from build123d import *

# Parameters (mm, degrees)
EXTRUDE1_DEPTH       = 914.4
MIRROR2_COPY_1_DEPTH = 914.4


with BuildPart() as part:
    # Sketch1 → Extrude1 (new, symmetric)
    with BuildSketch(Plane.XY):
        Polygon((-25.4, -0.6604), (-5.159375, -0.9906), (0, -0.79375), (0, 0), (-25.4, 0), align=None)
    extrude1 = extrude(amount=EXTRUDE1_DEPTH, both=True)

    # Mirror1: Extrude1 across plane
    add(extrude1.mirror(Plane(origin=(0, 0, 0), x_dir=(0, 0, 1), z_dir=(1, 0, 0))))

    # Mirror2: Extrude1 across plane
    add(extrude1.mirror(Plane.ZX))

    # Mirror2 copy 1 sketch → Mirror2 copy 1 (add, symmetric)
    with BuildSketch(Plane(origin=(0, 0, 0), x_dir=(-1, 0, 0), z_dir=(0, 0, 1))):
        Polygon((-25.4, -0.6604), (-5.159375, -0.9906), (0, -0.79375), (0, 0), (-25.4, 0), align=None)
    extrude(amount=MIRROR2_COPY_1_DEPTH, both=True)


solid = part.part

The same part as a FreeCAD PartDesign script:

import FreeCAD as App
import Part
import Sketcher
Q = App.Units.Quantity

doc = App.newDocument("Part")
body = doc.addObject("PartDesign::Body", "Body")

sketch1 = body.newObject("Sketcher::SketchObject", "Sketch")
sketch1.AttachmentSupport = (doc.getObject("XY_Plane"), [""])
sketch1.MapMode = "FlatFace"
sketch1.addGeometry([
    Part.LineSegment(App.Vector(-25.4, -0.6604, 0), App.Vector(-5.159375, -0.9906, 0)),
    Part.LineSegment(App.Vector(-5.159375, -0.9906, 0), App.Vector(0, -0.79375, 0)),
    Part.LineSegment(App.Vector(0, -0.79375, 0), App.Vector(0, 0, 0)),
    Part.LineSegment(App.Vector(0, 0, 0), App.Vector(-25.4, 0, 0)),
    Part.LineSegment(App.Vector(-25.4, 0, 0), App.Vector(-25.4, -0.6604, 0)),
], False)
sketch1.addConstraint([
    Sketcher.Constraint("Coincident", 0, 2, 1, 1),
    Sketcher.Constraint("Coincident", 1, 2, 2, 1),
    Sketcher.Constraint("Coincident", 2, 2, 3, 1),
    Sketcher.Constraint("Coincident", 3, 2, 4, 1),
    Sketcher.Constraint("Coincident", 4, 2, 0, 1),
    Sketcher.Constraint("Vertical", 2),
    Sketcher.Constraint("Horizontal", 3),
    Sketcher.Constraint("Vertical", 4),
    Sketcher.Constraint("Coincident", 2, 2, -1, 1),
    Sketcher.Constraint("DistanceX", 3, 2, 3, 1, Q("1 in")),
    Sketcher.Constraint("DistanceY", 2, 1, 2, 2, Q("0.03125 in")),
    Sketcher.Constraint("DistanceY", 4, 2, 4, 1, Q("0.026 in")),
    Sketcher.Constraint("DistanceX", 0, 2, -1, 1, Q("0.203125 in")),
    Sketcher.Constraint("DistanceY", 0, 2, -1, 1, Q("0.039 in")),
])
pad1 = body.newObject("PartDesign::Pad", "Pad")
pad1.Profile = sketch1
pad1.Length = Q("72 in")
pad1.Midplane = True
doc.recompute()

mirrored = body.newObject("PartDesign::Mirrored", "Mirrored")
mirrored.Originals = [pad1]
mirrored.MirrorPlane = (doc.getObject("YZ_Plane"), [""])
body.Tip = mirrored
doc.recompute()

mirrored2 = body.newObject("PartDesign::Mirrored", "Mirrored001")
mirrored2.Originals = [pad1]
mirrored2.MirrorPlane = (doc.getObject("XZ_Plane"), [""])
body.Tip = mirrored2

sketch2 = body.newObject("Sketcher::SketchObject", "Sketch001")
sketch2.AttachmentSupport = (doc.getObject("XY_Plane"), [""])
sketch2.MapMode = "FlatFace"
sketch2.addGeometry([
    Part.LineSegment(App.Vector(25.4, 0.6604, 0), App.Vector(5.159375, 0.9906, 0)),
    Part.LineSegment(App.Vector(5.159375, 0.9906, 0), App.Vector(0, 0.79375, 0)),
    Part.LineSegment(App.Vector(0, 0.79375, 0), App.Vector(0, 0, 0)),
    Part.LineSegment(App.Vector(0, 0, 0), App.Vector(25.4, 0, 0)),
    Part.LineSegment(App.Vector(25.4, 0, 0), App.Vector(25.4, 0.6604, 0)),
], False)
sketch2.addConstraint([
    Sketcher.Constraint("Coincident", 0, 2, 1, 1),
    Sketcher.Constraint("Coincident", 1, 2, 2, 1),
    Sketcher.Constraint("Coincident", 2, 2, 3, 1),
    Sketcher.Constraint("Coincident", 3, 2, 4, 1),
    Sketcher.Constraint("Coincident", 4, 2, 0, 1),
    Sketcher.Constraint("Vertical", 2),
    Sketcher.Constraint("Horizontal", 3),
    Sketcher.Constraint("Vertical", 4),
    Sketcher.Constraint("Coincident", 2, 2, -1, 1),
    Sketcher.Constraint("DistanceX", 3, 1, 3, 2, Q("1 in")),
    Sketcher.Constraint("DistanceY", 2, 2, 2, 1, Q("0.03125 in")),
    Sketcher.Constraint("DistanceY", 4, 1, 4, 2, Q("0.026 in")),
    Sketcher.Constraint("DistanceX", -1, 1, 0, 2, Q("0.203125 in")),
    Sketcher.Constraint("DistanceY", -1, 1, 0, 2, Q("0.039 in")),
])
pad2 = body.newObject("PartDesign::Pad", "Pad001")
pad2.Profile = sketch2
pad2.Length = Q("72 in")
pad2.Midplane = True

doc.recompute()
